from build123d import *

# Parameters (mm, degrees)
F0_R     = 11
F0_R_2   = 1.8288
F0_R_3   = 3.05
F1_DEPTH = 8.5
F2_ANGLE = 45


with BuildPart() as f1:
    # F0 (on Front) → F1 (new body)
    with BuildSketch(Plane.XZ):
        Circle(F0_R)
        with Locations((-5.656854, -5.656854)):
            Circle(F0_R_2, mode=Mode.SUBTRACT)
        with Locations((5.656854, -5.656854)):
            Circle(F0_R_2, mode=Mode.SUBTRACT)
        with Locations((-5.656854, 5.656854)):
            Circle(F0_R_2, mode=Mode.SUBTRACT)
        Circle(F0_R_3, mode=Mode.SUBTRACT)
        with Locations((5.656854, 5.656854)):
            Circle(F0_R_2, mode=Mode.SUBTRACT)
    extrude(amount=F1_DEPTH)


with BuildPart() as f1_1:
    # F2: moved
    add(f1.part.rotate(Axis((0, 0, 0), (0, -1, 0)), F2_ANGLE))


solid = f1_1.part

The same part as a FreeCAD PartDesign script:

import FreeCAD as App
import Part
import Sketcher
from FreeCAD import Vector

doc = App.newDocument("Part")
params = doc.addObject("Spreadsheet::Sheet", "Params")
for row, (alias, value) in enumerate([
    ("sketch1_diameter", "22 mm"),
    ("sketch1_diameter2", "6.1 mm"),
    ("pad1_length", "8.5 mm"),
], start=1):
    params.set(f"A{row}", alias)
    params.set(f"B{row}", "=" + value)
    params.setAlias(f"B{row}", alias)

body = doc.addObject("PartDesign::Body", "Body")

sketch1 = doc.addObject("Sketcher::SketchObject", "Sketch")
body.addObject(sketch1)
sketch1.AttachmentSupport = (doc.XZ_Plane, [""])
sketch1.MapMode = "FlatFace"
sketch1.addGeometry([
    Part.Circle(Vector(0, 0, 0), Vector(0, 0, 1), 11),
    Part.Circle(Vector(-5.7, -5.7, 0), Vector(0, 0, 1), 1.8),
    Part.Circle(Vector(5.7, -5.7, 0), Vector(0, 0, 1), 1.8),
    Part.Circle(Vector(-5.7, 5.7, 0), Vector(0, 0, 1), 1.8),
    Part.Circle(Vector(0, 0, 0), Vector(0, 0, 1), 3),
    Part.Circle(Vector(5.7, 5.7, 0), Vector(0, 0, 1), 1.8),
], False)
sketch1.addConstraint([
    Sketcher.Constraint("Coincident", 0, 3, -1, 1),
    Sketcher.Constraint("Coincident", 4, 3, -1, 1),
    Sketcher.Constraint("Equal", 1, 2),
    Sketcher.Constraint("Equal", 2, 3),
    Sketcher.Constraint("Equal", 3, 5),
    Sketcher.Constraint("Symmetric", 2, 3, 3, 3, -1, 1),
    Sketcher.Constraint("Symmetric", 1, 3, 5, 3, -1, 1),
    Sketcher.Constraint("Symmetric", 1, 3, 2, 3, -2),
    Sketcher.Constraint("Diameter", 0, 22.0),
    Sketcher.Constraint("Diameter", 4, 6.1),
    Sketcher.Constraint("Diameter", 1, 3.6576),
    Sketcher.Constraint("DistanceX", 1, 3, -1, 1, 5.656854),
    Sketcher.Constraint("DistanceY", 1, 3, -1, 1, 5.656854),
])
sketch1.setExpression("Constraints[8]", "Params.sketch1_diameter")
sketch1.setExpression("Constraints[9]", "Params.sketch1_diameter2")
pad1 = doc.addObject("PartDesign::Pad", "Pad")
body.addObject(pad1)
pad1.Profile = sketch1
pad1.setExpression("Length", "Params.pad1_length")
body2 = doc.addObject("PartDesign::Body", "Body001")
doc.recompute()

body.Placement = App.Placement(Vector(0, 0, 0), App.Rotation(Vector(0, -1, 0), 45))
boolean = doc.addObject("PartDesign::Boolean", "Boolean")
body2.addObject(boolean)
boolean.Type = "Fuse"
boolean.addObjects([body])

doc.recompute()
